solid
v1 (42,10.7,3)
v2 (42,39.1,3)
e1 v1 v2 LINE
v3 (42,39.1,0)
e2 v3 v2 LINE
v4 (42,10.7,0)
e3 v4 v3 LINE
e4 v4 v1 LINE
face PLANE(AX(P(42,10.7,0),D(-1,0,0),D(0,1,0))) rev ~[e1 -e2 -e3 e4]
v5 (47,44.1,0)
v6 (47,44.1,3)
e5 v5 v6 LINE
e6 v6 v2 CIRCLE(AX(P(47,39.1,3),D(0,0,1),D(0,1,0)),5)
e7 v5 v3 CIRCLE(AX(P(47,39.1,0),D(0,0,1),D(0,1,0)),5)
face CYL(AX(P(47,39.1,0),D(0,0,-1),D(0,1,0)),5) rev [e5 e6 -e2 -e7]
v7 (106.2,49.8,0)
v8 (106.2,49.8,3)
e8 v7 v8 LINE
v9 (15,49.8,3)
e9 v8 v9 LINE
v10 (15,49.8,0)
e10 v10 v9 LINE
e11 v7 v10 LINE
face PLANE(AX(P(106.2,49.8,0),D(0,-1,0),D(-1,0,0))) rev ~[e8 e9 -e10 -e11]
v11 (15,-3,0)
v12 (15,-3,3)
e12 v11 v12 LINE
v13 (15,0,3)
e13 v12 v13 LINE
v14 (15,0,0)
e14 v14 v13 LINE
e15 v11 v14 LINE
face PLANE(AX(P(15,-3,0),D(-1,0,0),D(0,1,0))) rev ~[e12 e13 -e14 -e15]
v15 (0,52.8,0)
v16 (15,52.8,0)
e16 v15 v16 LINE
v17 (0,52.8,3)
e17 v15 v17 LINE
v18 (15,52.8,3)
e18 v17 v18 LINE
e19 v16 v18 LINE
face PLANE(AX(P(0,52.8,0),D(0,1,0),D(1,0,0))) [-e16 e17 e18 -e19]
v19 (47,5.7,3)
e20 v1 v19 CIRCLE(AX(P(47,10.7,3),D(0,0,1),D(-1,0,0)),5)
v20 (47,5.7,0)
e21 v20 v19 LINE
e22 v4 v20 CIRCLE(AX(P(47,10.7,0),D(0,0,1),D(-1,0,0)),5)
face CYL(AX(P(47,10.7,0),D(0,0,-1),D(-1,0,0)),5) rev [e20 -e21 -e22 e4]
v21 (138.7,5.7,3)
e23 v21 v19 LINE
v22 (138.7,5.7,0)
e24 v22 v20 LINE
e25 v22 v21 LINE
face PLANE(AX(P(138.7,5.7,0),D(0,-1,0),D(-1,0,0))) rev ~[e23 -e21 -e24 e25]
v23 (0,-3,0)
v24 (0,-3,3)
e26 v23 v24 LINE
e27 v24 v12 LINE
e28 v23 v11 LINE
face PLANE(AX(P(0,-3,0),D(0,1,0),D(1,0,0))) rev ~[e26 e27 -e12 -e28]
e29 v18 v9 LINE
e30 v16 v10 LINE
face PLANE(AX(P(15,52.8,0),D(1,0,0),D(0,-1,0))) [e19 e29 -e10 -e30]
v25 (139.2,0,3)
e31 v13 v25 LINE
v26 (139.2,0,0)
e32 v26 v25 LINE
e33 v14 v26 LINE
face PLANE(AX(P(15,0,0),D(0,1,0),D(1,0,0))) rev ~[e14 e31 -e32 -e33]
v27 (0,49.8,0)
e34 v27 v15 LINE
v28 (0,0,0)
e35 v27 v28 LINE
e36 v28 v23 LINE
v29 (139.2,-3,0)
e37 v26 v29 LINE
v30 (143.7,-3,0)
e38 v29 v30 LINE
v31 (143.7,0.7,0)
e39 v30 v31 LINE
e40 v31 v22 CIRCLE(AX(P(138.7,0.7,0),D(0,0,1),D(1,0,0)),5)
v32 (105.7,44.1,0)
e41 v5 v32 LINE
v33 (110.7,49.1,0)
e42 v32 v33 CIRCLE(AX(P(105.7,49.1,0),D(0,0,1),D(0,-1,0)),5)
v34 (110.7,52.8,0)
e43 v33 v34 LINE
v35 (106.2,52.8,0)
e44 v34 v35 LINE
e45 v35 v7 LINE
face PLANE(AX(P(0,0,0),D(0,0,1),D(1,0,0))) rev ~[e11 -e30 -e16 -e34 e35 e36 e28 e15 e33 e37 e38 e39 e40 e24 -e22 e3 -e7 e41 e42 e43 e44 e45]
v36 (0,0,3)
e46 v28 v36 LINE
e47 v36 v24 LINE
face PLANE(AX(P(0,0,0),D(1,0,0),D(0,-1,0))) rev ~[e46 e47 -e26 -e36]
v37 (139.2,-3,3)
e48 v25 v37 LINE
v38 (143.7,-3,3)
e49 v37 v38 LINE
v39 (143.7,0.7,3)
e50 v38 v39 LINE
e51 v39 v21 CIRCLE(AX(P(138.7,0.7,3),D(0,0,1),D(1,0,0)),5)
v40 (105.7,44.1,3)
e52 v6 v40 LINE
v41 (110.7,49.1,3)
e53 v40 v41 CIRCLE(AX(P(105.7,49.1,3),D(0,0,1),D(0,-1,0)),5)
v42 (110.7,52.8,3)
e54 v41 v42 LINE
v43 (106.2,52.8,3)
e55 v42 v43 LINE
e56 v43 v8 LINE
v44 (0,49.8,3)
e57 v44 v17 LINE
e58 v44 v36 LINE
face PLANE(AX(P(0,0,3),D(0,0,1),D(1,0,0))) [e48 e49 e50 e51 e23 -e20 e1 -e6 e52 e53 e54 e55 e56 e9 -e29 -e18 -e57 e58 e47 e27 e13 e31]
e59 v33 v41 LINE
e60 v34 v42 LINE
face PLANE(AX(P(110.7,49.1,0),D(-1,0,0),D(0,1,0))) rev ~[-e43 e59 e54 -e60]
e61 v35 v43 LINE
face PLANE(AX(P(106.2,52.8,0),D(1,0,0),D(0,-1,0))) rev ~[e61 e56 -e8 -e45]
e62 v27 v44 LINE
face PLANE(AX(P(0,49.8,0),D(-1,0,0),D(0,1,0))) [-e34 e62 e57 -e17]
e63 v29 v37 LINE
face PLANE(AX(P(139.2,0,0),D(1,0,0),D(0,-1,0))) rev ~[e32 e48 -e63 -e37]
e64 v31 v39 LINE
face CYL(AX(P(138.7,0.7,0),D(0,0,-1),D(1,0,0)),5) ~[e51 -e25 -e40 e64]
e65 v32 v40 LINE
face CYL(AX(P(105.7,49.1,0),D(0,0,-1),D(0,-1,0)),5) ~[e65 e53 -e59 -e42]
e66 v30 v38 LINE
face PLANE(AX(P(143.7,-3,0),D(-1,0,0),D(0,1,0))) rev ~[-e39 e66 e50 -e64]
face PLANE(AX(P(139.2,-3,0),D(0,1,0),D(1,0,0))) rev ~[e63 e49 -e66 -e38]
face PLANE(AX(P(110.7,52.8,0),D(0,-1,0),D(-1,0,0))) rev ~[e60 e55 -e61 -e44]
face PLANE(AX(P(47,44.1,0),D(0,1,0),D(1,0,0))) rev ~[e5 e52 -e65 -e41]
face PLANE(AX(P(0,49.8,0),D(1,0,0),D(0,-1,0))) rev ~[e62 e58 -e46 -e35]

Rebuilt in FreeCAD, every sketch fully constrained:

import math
import FreeCAD as App
import Part
import Sketcher

V = App.Vector

doc = App.newDocument("Part")
params = doc.addObject("Spreadsheet::Sheet", "Params")
for row, (alias, value) in enumerate([
    ("sketch1_radius", "5 mm"),
    ("sketch1_width", "15 mm"),
    ("sketch1_height", "3 mm"),
    ("sketch1_width2", "91.2 mm"),
    ("sketch1_width3", "124.2 mm"),
    ("pad1_length", "3 mm"),
], start=1):
    params.set(f"A{row}", alias)
    params.set(f"B{row}", "=" + value)
    params.setAlias(f"B{row}", alias)

body = doc.addObject("PartDesign::Body", "Body")

sketch1 = body.newObject("Sketcher::SketchObject", "Sketch")
sketch1.AttachmentSupport = (doc.getObject("XY_Plane"), [""])
sketch1.MapMode = "FlatFace"
sketch1.addGeometry([
    Part.LineSegment(V(106.2, 52.8, 0), V(106.2, 49.8, 0)),
    Part.LineSegment(V(106.2, 49.8, 0), V(15, 49.8, 0)),
    Part.LineSegment(V(15, 49.8, 0), V(15, 52.8, 0)),
    Part.LineSegment(V(15, 52.8, 0), V(0, 52.8, 0)),
    Part.LineSegment(V(0, 52.8, 0), V(0, -3, 0)),
    Part.LineSegment(V(0, -3, 0), V(15, -3, 0)),
    Part.LineSegment(V(15, -3, 0), V(15, 0, 0)),
    Part.LineSegment(V(15, 0, 0), V(139.2, 0, 0)),
    Part.LineSegment(V(139.2, 0, 0), V(139.2, -3, 0)),
    Part.LineSegment(V(139.2, -3, 0), V(143.7, -3, 0)),
    Part.LineSegment(V(143.7, -3, 0), V(143.7, 0.7, 0)),
    Part.ArcOfCircle(Part.Circle(V(138.7, 0.7, 0), V(0, 0, 1), 5), math.radians(0), math.radians(90)),
    Part.LineSegment(V(138.7, 5.7, 0), V(47, 5.7, 0)),
    Part.ArcOfCircle(Part.Circle(V(47, 10.7, 0), V(0, 0, 1), 5), math.radians(180), math.radians(270)),
    Part.LineSegment(V(42, 10.7, 0), V(42, 39.1, 0)),
    Part.ArcOfCircle(Part.Circle(V(47, 39.1, 0), V(0, 0, 1), 5), math.radians(90), math.radians(180)),
    Part.LineSegment(V(47, 44.1, 0), V(105.7, 44.1, 0)),
    Part.ArcOfCircle(Part.Circle(V(105.7, 49.1, 0), V(0, 0, 1), 5), math.radians(-90), math.radians(0)),
    Part.LineSegment(V(110.7, 49.1, 0), V(110.7, 52.8, 0)),
    Part.LineSegment(V(110.7, 52.8, 0), V(106.2, 52.8, 0)),
], False)
sketch1.addConstraint([
    Sketcher.Constraint("Coincident", 0, 2, 1, 1),
    Sketcher.Constraint("Coincident", 1, 2, 2, 1),
    Sketcher.Constraint("Coincident", 2, 2, 3, 1),
    Sketcher.Constraint("Coincident", 3, 2, 4, 1),
    Sketcher.Constraint("Coincident", 4, 2, 5, 1),
    Sketcher.Constraint("Coincident", 5, 2, 6, 1),
    Sketcher.Constraint("Coincident", 6, 2, 7, 1),
    Sketcher.Constraint("Coincident", 7, 2, 8, 1),
    Sketcher.Constraint("Coincident", 8, 2, 9, 1),
    Sketcher.Constraint("Coincident", 9, 2, 10, 1),
    Sketcher.Constraint("Tangent", 10, 2, 11, 1),
    Sketcher.Constraint("Tangent", 11, 2, 12, 1),
    Sketcher.Constraint("Tangent", 12, 2, 13, 2),
    Sketcher.Constraint("Tangent", 13, 1, 14, 1),
    Sketcher.Constraint("Tangent", 14, 2, 15, 2),
    Sketcher.Constraint("Tangent", 15, 1, 16, 1),
    Sketcher.Constraint("Tangent", 16, 2, 17, 1),
    Sketcher.Constraint("Tangent", 17, 2, 18, 1),
    Sketcher.Constraint("Coincident", 18, 2, 19, 1),
    Sketcher.Constraint("Coincident", 19, 2, 0, 1),
    Sketcher.Constraint("Vertical", 0),
    Sketcher.Constraint("Horizontal", 1),
    Sketcher.Constraint("Vertical", 2),
    Sketcher.Constraint("Horizontal", 3),
    Sketcher.Constraint("Vertical", 4),
    Sketcher.Constraint("Horizontal", 5),
    Sketcher.Constraint("Vertical", 6),
    Sketcher.Constraint("Horizontal", 7),
    Sketcher.Constraint("Vertical", 8),
    Sketcher.Constraint("Horizontal", 9),
    Sketcher.Constraint("Vertical", 10),
    Sketcher.Constraint("Horizontal", 12),
    Sketcher.Constraint("Vertical", 14),
    Sketcher.Constraint("Horizontal", 16),
    Sketcher.Constraint("Vertical", 18),
    Sketcher.Constraint("Horizontal", 19),
    Sketcher.Constraint("Equal", 11, 13),
    Sketcher.Constraint("Equal", 13, 15),
    Sketcher.Constraint("Equal", 15, 17),
    Sketcher.Constraint("PointOnObject", 3, 2, -2),
    Sketcher.Constraint("PointOnObject", 6, 2, -1),
    Sketcher.Constraint("Horizontal", 5, 2, 8, 2),
    Sketcher.Constraint("Horizontal", 3, 2, 18, 2),
    Sketcher.Constraint("Vertical", 2, 2, 5, 2),
    Sketcher.Constraint("Equal", 9, 19),
    Sketcher.Constraint("Equal", 2, 6),
    Sketcher.Constraint("Equal", 10, 18),
    Sketcher.Constraint("Radius", 11, 5.0),
    Sketcher.Constraint("DistanceX", 3, 2, 3, 1, 15.0),
    Sketcher.Constraint("DistanceY", 0, 2, 0, 1, 3.0),
    Sketcher.Constraint("DistanceX", 1, 2, 1, 1, 91.2),
    Sketcher.Constraint("DistanceX", 7, 1, 7, 2, 124.2),
    Sketcher.Constraint("DistanceX", 9, 1, 9, 2, 4.5),
    Sketcher.Constraint("DistanceX", -1, 1, 13, 1, 42.0),
    Sketcher.Constraint("DistanceY", -1, 1, 0, 2, 49.8),
    Sketcher.Constraint("DistanceY", -1, 1, 11, 2, 5.7),
])
sketch1.setExpression("Constraints[47]", "Params.sketch1_radius")
sketch1.setExpression("Constraints[48]", "Params.sketch1_width")
sketch1.setExpression("Constraints[49]", "Params.sketch1_height")
sketch1.setExpression("Constraints[50]", "Params.sketch1_width2")
sketch1.setExpression("Constraints[51]", "Params.sketch1_width3")
pad1 = body.newObject("PartDesign::Pad", "Pad")
pad1.Profile = sketch1
pad1.setExpression("Length", "Params.pad1_length")

doc.recompute()
